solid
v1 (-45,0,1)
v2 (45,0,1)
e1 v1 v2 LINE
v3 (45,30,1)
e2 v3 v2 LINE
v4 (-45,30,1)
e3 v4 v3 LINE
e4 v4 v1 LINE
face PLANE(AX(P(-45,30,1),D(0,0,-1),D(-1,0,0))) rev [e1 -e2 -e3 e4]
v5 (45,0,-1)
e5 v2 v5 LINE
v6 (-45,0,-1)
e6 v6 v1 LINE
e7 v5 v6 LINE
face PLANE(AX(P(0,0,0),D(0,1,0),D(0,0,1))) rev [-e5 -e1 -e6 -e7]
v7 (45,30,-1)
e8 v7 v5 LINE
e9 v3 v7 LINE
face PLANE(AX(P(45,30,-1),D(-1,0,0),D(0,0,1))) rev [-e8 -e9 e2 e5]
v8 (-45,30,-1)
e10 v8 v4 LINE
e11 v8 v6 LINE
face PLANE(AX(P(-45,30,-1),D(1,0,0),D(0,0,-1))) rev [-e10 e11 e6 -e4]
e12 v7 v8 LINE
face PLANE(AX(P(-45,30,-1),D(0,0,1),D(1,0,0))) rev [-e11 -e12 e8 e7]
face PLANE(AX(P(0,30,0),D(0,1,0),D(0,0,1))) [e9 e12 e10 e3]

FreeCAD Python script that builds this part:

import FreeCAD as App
import Part
import Sketcher

V = App.Vector
Q = App.Units.Quantity

doc = App.newDocument("Part")
body = doc.addObject("PartDesign::Body", "Body")

# Sketch on XZ plane
sketch1 = doc.addObject("Sketcher::SketchObject", "Sketch")
body.addObject(sketch1)
sketch1.AttachmentSupport = (doc.XZ_Plane, [""])
sketch1.MapMode = "FlatFace"
sketch1.addGeometry([
    Part.LineSegment(V(-45, -1, 0), V(-45, 1, 0)),
    Part.LineSegment(V(-45, 1, 0), V(45, 1, 0)),
    Part.LineSegment(V(45, 1, 0), V(45, -1, 0)),
    Part.LineSegment(V(45, -1, 0), V(-45, -1, 0)),
], False)
sketch1.addConstraint([
    Sketcher.Constraint("Coincident", 0, 2, 1, 1),
    Sketcher.Constraint("Coincident", 1, 2, 2, 1),
    Sketcher.Constraint("Coincident", 2, 2, 3, 1),
    Sketcher.Constraint("Coincident", 3, 2, 0, 1),
    Sketcher.Constraint("Vertical", 0),
    Sketcher.Constraint("Horizontal", 1),
    Sketcher.Constraint("Vertical", 2),
    Sketcher.Constraint("Horizontal", 3),
    Sketcher.Constraint("Symmetric", 0, 2, 2, 2, -1, 1),
    Sketcher.Constraint("DistanceX", 1, 1, 1, 2, Q("90 mm")),
    Sketcher.Constraint("DistanceY", 0, 1, 0, 2, Q("2 mm")),
])
pad1 = doc.addObject("PartDesign::Pad", "Pad")
body.addObject(pad1)
pad1.Profile = sketch1
pad1.Length = 30
pad1.Reversed = True

doc.recompute()
